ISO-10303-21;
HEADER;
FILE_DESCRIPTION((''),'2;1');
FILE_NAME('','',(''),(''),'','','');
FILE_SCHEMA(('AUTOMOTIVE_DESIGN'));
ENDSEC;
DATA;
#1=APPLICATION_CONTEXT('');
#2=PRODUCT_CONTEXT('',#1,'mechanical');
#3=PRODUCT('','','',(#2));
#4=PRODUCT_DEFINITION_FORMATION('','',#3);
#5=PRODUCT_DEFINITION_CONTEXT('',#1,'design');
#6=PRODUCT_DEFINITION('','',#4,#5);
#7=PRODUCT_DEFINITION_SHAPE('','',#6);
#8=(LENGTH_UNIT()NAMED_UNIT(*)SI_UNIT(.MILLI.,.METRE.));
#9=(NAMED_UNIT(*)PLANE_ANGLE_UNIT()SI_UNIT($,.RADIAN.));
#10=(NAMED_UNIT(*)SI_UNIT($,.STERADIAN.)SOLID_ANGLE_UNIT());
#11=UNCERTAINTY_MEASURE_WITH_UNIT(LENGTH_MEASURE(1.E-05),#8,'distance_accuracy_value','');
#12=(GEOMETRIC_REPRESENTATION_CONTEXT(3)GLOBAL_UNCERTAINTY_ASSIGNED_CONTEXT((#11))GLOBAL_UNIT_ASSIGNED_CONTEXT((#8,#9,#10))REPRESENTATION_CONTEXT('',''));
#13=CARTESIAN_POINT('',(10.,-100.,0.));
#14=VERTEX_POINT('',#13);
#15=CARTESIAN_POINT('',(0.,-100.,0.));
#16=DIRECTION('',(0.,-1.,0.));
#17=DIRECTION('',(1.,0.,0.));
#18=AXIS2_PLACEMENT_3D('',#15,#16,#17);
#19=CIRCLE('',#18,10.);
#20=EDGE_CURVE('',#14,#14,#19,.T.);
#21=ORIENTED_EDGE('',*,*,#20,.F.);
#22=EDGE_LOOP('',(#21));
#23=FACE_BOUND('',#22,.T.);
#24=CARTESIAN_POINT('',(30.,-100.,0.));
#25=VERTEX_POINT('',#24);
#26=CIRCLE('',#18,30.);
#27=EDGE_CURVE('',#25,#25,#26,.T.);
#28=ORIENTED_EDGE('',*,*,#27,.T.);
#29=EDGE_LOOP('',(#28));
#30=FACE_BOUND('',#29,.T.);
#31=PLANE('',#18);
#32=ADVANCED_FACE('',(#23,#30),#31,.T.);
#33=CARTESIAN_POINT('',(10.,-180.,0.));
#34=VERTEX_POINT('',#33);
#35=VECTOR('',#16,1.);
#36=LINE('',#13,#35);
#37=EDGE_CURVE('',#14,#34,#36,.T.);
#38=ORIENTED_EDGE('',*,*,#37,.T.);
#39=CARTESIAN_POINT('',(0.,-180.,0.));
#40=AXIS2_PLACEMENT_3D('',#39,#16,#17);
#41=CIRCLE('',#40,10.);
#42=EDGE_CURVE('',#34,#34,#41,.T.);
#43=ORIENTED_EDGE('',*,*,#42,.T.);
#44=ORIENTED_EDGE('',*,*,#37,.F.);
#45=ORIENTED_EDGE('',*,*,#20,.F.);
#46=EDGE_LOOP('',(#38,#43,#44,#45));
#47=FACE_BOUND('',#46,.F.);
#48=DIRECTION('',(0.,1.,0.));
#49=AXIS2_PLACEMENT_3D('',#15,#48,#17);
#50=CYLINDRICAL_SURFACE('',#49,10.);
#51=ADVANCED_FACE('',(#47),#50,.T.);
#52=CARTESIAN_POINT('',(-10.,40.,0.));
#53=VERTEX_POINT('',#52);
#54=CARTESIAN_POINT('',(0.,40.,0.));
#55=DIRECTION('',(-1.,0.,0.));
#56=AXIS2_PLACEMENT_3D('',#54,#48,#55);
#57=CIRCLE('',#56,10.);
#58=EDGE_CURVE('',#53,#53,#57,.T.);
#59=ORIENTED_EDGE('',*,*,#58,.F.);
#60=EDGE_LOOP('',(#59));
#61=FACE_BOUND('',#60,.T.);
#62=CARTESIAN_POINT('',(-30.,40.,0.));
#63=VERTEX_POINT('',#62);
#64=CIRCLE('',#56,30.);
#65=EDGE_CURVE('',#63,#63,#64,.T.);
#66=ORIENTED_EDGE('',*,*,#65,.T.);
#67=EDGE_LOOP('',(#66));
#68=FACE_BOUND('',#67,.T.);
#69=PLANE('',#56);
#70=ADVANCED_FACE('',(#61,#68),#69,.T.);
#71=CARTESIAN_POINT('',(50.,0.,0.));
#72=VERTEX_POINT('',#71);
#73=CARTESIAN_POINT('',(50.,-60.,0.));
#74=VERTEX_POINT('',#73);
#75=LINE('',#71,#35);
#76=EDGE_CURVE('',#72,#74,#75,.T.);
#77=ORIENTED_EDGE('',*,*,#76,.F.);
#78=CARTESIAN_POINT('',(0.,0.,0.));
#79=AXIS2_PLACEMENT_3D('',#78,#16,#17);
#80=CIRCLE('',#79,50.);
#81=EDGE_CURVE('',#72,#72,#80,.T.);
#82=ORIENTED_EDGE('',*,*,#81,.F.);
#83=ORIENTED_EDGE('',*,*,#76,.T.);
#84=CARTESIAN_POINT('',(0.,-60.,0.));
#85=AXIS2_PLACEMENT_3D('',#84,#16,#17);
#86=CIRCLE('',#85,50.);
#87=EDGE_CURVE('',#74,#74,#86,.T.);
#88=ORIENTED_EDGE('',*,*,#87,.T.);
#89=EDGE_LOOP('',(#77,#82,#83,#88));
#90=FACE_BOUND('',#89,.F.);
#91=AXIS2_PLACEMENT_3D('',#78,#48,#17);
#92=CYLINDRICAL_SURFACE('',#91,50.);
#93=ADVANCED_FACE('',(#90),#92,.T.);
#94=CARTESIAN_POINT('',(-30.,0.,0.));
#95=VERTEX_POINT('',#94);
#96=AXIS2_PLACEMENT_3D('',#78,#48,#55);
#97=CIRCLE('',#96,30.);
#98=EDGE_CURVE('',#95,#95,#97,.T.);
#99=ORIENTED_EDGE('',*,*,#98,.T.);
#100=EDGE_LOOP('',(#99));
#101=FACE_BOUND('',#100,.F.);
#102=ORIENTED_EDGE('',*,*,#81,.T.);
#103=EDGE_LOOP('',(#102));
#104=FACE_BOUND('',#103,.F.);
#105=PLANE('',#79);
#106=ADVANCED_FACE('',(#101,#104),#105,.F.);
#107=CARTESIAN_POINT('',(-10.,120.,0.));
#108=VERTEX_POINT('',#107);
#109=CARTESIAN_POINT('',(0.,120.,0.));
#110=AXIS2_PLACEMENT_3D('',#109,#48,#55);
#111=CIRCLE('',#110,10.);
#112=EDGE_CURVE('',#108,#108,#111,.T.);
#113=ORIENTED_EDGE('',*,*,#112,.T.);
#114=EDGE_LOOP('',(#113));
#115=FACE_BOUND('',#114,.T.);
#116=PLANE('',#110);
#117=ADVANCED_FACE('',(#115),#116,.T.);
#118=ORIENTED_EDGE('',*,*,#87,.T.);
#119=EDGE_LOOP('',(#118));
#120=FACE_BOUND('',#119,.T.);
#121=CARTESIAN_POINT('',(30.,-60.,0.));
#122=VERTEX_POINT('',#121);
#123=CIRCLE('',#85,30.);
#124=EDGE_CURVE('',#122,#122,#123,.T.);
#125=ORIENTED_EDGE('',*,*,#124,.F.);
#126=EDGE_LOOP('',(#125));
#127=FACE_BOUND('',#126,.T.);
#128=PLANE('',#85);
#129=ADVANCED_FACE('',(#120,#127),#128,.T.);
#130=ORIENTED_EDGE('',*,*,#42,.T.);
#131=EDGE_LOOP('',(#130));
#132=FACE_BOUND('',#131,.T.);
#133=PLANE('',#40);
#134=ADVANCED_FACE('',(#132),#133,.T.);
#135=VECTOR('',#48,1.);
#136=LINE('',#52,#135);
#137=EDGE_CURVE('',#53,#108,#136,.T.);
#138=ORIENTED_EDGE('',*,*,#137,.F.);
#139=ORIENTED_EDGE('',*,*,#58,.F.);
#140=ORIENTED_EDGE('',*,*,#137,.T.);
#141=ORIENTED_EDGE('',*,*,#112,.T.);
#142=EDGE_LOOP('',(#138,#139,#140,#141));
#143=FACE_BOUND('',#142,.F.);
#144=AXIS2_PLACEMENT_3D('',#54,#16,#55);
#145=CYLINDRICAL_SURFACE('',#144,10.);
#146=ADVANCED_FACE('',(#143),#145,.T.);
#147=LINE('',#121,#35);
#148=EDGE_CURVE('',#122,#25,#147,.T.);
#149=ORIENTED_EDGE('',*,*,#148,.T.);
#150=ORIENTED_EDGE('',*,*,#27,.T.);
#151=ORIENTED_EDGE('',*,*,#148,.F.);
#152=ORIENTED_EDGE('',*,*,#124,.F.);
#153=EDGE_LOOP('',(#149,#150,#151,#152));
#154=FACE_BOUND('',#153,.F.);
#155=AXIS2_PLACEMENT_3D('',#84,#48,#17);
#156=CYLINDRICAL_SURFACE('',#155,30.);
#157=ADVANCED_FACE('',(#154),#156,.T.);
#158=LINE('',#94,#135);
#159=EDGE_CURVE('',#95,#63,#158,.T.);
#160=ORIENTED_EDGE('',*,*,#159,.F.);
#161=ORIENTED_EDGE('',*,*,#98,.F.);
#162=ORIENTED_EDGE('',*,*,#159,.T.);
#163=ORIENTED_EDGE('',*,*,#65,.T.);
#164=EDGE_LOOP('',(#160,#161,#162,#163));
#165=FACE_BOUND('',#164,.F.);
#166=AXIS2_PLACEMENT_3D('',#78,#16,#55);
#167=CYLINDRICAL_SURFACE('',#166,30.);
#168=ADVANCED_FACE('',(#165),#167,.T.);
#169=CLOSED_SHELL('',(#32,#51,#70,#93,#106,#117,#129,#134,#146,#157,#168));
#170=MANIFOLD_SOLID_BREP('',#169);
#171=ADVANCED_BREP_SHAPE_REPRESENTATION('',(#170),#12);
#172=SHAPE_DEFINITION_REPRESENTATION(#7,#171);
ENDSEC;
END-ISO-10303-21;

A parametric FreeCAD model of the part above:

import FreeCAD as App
import Part
import Sketcher
Q = App.Units.Quantity

doc = App.newDocument("Part")
body = doc.addObject("PartDesign::Body", "Body")

sketch1 = doc.addObject("Sketcher::SketchObject", "Sketch")
body.addObject(sketch1)
sketch1.AttachmentSupport = (doc.XZ_Plane, [""])
sketch1.MapMode = "FlatFace"
sketch1.addGeometry(Part.Circle(App.Vector(0, 0, 0), App.Vector(0, 0, 1), 50), False)
sketch1.addConstraint(Sketcher.Constraint("Coincident", 0, 3, -1, 1))
sketch1.addConstraint(Sketcher.Constraint("Diameter", 0, Q("100 mm")))
pad1 = doc.addObject("PartDesign::Pad", "Pad")
body.addObject(pad1)
pad1.Profile = sketch1
pad1.Length = 60

sketch2 = doc.addObject("Sketcher::SketchObject", "Sketch001")
body.addObject(sketch2)
sketch2.AttachmentSupport = (doc.XZ_Plane, [""])
sketch2.MapMode = "FlatFace"
sketch2.AttachmentOffset = App.Placement(App.Vector(0, 0, 60), App.Rotation())
sketch2.addGeometry(Part.Circle(App.Vector(0, 0, 0), App.Vector(0, 0, 1), 30), False)
sketch2.addConstraint(Sketcher.Constraint("Coincident", 0, 3, -1, 1))
sketch2.addConstraint(Sketcher.Constraint("Diameter", 0, Q("60 mm")))
pad2 = doc.addObject("PartDesign::Pad", "Pad001")
body.addObject(pad2)
pad2.Profile = sketch2
pad2.Length = 40

sketch3 = doc.addObject("Sketcher::SketchObject", "Sketch002")
body.addObject(sketch3)
sketch3.AttachmentSupport = (doc.XZ_Plane, [""])
sketch3.MapMode = "FlatFace"
sketch3.AttachmentOffset = App.Placement(App.Vector(0, 0, 100), App.Rotation())
sketch3.addGeometry(Part.Circle(App.Vector(0, 0, 0), App.Vector(0, 0, 1), 10), False)
sketch3.addConstraint(Sketcher.Constraint("Coincident", 0, 3, -1, 1))
sketch3.addConstraint(Sketcher.Constraint("Diameter", 0, Q("20 mm")))
pad3 = doc.addObject("PartDesign::Pad", "Pad002")
body.addObject(pad3)
pad3.Profile = sketch3
pad3.Length = 80

sketch4 = doc.addObject("Sketcher::SketchObject", "Sketch003")
body.addObject(sketch4)
sketch4.AttachmentSupport = (doc.XZ_Plane, [""])
sketch4.MapMode = "FlatFace"
sketch4.addGeometry(Part.Circle(App.Vector(0, 0, 0), App.Vector(0, 0, 1), 30), False)
sketch4.addConstraint(Sketcher.Constraint("Coincident", 0, 3, -1, 1))
sketch4.addConstraint(Sketcher.Constraint("Diameter", 0, Q("60 mm")))
pad4 = doc.addObject("PartDesign::Pad", "Pad003")
body.addObject(pad4)
pad4.Profile = sketch4
pad4.Length = 40
pad4.Reversed = True

sketch5 = doc.addObject("Sketcher::SketchObject", "Sketch004")
body.addObject(sketch5)
sketch5.AttachmentSupport = (doc.XZ_Plane, [""])
sketch5.MapMode = "FlatFace"
sketch5.AttachmentOffset = App.Placement(App.Vector(0, 0, -40), App.Rotation())
sketch5.addGeometry(Part.Circle(App.Vector(0, 0, 0), App.Vector(0, 0, 1), 10), False)
sketch5.addConstraint(Sketcher.Constraint("Coincident", 0, 3, -1, 1))
sketch5.addConstraint(Sketcher.Constraint("Diameter", 0, Q("20 mm")))
pad5 = doc.addObject("PartDesign::Pad", "Pad004")
body.addObject(pad5)
pad5.Profile = sketch5
pad5.Length = 80
pad5.Reversed = True

doc.recompute()
